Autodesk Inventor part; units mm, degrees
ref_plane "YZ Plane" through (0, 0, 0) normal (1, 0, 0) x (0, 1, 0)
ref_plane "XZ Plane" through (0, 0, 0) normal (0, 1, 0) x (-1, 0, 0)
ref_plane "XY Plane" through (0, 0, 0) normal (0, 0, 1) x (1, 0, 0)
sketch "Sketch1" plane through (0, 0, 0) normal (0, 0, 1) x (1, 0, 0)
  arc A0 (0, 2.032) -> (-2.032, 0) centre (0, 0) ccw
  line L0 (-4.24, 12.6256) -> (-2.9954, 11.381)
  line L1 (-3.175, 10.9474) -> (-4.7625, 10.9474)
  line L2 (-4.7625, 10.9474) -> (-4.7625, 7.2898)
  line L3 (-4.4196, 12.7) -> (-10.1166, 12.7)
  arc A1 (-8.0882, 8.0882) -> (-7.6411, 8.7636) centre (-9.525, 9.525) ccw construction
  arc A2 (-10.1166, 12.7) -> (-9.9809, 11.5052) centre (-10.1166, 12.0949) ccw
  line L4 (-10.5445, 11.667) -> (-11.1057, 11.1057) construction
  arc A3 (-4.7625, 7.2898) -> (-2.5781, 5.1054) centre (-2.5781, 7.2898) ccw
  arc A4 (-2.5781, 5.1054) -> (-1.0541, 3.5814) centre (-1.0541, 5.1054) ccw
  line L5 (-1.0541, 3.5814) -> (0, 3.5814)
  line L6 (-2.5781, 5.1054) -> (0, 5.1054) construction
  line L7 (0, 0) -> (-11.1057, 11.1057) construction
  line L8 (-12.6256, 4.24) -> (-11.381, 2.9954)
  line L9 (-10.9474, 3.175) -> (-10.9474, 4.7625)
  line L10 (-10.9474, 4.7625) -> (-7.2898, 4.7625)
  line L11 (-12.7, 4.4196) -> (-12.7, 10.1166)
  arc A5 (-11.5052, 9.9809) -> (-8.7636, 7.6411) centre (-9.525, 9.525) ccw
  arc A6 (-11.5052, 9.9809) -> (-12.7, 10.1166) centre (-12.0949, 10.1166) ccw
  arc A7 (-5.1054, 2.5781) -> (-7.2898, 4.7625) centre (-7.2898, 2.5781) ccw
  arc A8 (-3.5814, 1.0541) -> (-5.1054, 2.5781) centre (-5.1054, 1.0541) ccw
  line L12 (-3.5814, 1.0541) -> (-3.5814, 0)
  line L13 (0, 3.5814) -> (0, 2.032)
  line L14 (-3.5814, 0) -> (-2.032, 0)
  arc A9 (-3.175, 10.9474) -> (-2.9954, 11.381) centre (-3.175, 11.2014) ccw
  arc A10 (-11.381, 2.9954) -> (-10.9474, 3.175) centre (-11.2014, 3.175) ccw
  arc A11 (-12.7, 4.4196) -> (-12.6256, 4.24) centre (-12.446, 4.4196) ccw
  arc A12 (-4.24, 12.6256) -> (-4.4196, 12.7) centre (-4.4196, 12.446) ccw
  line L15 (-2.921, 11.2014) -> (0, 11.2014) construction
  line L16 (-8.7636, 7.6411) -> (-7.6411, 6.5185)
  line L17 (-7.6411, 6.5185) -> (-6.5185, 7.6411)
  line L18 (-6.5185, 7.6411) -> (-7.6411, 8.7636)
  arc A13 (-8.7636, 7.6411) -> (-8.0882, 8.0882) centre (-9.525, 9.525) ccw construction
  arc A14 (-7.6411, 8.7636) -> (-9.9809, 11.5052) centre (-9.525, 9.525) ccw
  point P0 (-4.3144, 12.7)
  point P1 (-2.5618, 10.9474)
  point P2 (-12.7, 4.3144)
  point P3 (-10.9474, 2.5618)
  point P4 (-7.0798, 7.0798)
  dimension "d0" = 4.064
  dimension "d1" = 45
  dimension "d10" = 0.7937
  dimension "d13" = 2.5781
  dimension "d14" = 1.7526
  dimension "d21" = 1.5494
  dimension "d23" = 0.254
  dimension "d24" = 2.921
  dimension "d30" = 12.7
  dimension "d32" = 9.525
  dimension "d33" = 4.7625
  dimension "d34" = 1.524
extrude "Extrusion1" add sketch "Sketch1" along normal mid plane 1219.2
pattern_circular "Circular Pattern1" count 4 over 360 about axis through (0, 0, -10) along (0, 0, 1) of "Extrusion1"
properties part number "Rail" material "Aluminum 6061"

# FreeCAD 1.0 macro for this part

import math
import FreeCAD as App
import Part
import Sketcher
from FreeCAD import Vector
Q = App.Units.Quantity

doc = App.newDocument("Part")
body = doc.addObject("PartDesign::Body", "Body")

sketch1 = body.newObject("Sketcher::SketchObject", "Sketch")
sketch1.AttachmentSupport = (doc.getObject("XY_Plane"), [""])
sketch1.MapMode = "FlatFace"
sketch1.addGeometry([
    Part.ArcOfCircle(Part.Circle(Vector(0, 0, 0), Vector(0, 0, 1), 2.03), math.radians(90), math.radians(180)),
    Part.LineSegment(Vector(0, 2.03, 0), Vector(0, 3.58, 0)),
    Part.LineSegment(Vector(0, 3.58, 0), Vector(-1.05, 3.58, 0)),
    Part.ArcOfCircle(Part.Circle(Vector(-1.05, 5.11, 0), Vector(0, 0, 1), 1.52), math.radians(180), math.radians(270)),
    Part.ArcOfCircle(Part.Circle(Vector(-2.58, 7.29, 0), Vector(0, 0, 1), 2.18), math.radians(180), math.radians(270)),
    Part.LineSegment(Vector(-4.76, 7.29, 0), Vector(-4.76, 10.95, 0)),
    Part.LineSegment(Vector(-4.76, 10.95, 0), Vector(-3.17, 10.95, 0)),
    Part.ArcOfCircle(Part.Circle(Vector(-3.17, 11.2, 0), Vector(0, 0, 1), 0.25), math.radians(-90), math.radians(45)),
    Part.LineSegment(Vector(-3, 11.38, 0), Vector(-4.24, 12.63, 0)),
    Part.ArcOfCircle(Part.Circle(Vector(-4.42, 12.45, 0), Vector(0, 0, 1), 0.25), math.radians(45), math.radians(90)),
    Part.LineSegment(Vector(-4.42, 12.7, 0), Vector(-10.12, 12.7, 0)),
    Part.ArcOfCircle(Part.Circle(Vector(-10.12, 12.09, 0), Vector(0, 0, 1), 0.61), math.radians(90), math.radians(283)),
    Part.ArcOfCircle(Part.Circle(Vector(-9.53, 9.53, 0), Vector(0, 0, 1), 2.03), math.radians(-22), math.radians(103)),
    Part.LineSegment(Vector(-7.64, 8.76, 0), Vector(-6.52, 7.64, 0)),
    Part.LineSegment(Vector(-6.52, 7.64, 0), Vector(-7.64, 6.52, 0)),
    Part.LineSegment(Vector(-7.64, 6.52, 0), Vector(-8.76, 7.64, 0)),
    Part.ArcOfCircle(Part.Circle(Vector(-9.53, 9.53, 0), Vector(0, 0, 1), 2.03), math.radians(167), math.radians(292)),
    Part.ArcOfCircle(Part.Circle(Vector(-12.09, 10.12, 0), Vector(0, 0, 1), 0.61), math.radians(-13), math.radians(180)),
    Part.LineSegment(Vector(-12.7, 10.12, 0), Vector(-12.7, 4.42, 0)),
    Part.ArcOfCircle(Part.Circle(Vector(-12.45, 4.42, 0), Vector(0, 0, 1), 0.25), math.radians(180), math.radians(225)),
    Part.LineSegment(Vector(-12.63, 4.24, 0), Vector(-11.38, 3, 0)),
    Part.ArcOfCircle(Part.Circle(Vector(-11.2, 3.17, 0), Vector(0, 0, 1), 0.25), math.radians(-135), math.radians(0)),
    Part.LineSegment(Vector(-10.95, 3.17, 0), Vector(-10.95, 4.76, 0)),
    Part.LineSegment(Vector(-10.95, 4.76, 0), Vector(-7.29, 4.76, 0)),
    Part.ArcOfCircle(Part.Circle(Vector(-7.29, 2.58, 0), Vector(0, 0, 1), 2.18), math.radians(0), math.radians(90)),
    Part.ArcOfCircle(Part.Circle(Vector(-5.11, 1.05, 0), Vector(0, 0, 1), 1.52), math.radians(0), math.radians(90)),
    Part.LineSegment(Vector(-3.58, 1.05, 0), Vector(-3.58, 0, 0)),
    Part.LineSegment(Vector(-3.58, 0, 0), Vector(-2.03, 0, 0)),
], False)
sketch1.addConstraint([
    Sketcher.Constraint("Coincident", 0, 1, 1, 1),
    Sketcher.Constraint("Coincident", 1, 2, 2, 1),
    Sketcher.Constraint("Tangent", 2, 2, 3, 2),
    Sketcher.Constraint("Coincident", 3, 1, 4, 2),
    Sketcher.Constraint("Tangent", 4, 1, 5, 1),
    Sketcher.Constraint("Coincident", 5, 2, 6, 1),
    Sketcher.Constraint("Tangent", 6, 2, 7, 1),
    Sketcher.Constraint("Tangent", 7, 2, 8, 1),
    Sketcher.Constraint("Tangent", 8, 2, 9, 1),
    Sketcher.Constraint("Tangent", 9, 2, 10, 1),
    Sketcher.Constraint("Tangent", 10, 2, 11, 1),
    Sketcher.Constraint("Tangent", 11, 2, 12, 2),
    Sketcher.Constraint("Coincident", 12, 1, 13, 1),
    Sketcher.Constraint("Coincident", 13, 2, 14, 1),
    Sketcher.Constraint("Coincident", 14, 2, 15, 1),
    Sketcher.Constraint("Coincident", 15, 2, 16, 2),
    Sketcher.Constraint("Tangent", 16, 1, 17, 1),
    Sketcher.Constraint("Tangent", 17, 2, 18, 1),
    Sketcher.Constraint("Tangent", 18, 2, 19, 1),
    Sketcher.Constraint("Tangent", 19, 2, 20, 1),
    Sketcher.Constraint("Tangent", 20, 2, 21, 1),
    Sketcher.Constraint("Tangent", 21, 2, 22, 1),
    Sketcher.Constraint("Coincident", 22, 2, 23, 1),
    Sketcher.Constraint("Tangent", 23, 2, 24, 2),
    Sketcher.Constraint("Coincident", 24, 1, 25, 2),
    Sketcher.Constraint("Tangent", 25, 1, 26, 1),
    Sketcher.Constraint("Coincident", 26, 2, 27, 1),
    Sketcher.Constraint("Coincident", 27, 2, 0, 2),
    Sketcher.Constraint("Vertical", 1),
    Sketcher.Constraint("Horizontal", 2),
    Sketcher.Constraint("Vertical", 5),
    Sketcher.Constraint("Horizontal", 6),
    Sketcher.Constraint("Horizontal", 10),
    Sketcher.Constraint("Vertical", 18),
    Sketcher.Constraint("Vertical", 22),
    Sketcher.Constraint("Horizontal", 23),
    Sketcher.Constraint("Vertical", 26),
    Sketcher.Constraint("Horizontal", 27),
    Sketcher.Constraint("Coincident", 0, 3, -1, 1),
    Sketcher.Constraint("Coincident", 16, 3, 12, 3),
    Sketcher.Constraint("Equal", 7, 9),
    Sketcher.Constraint("Equal", 0, 12),
    Sketcher.Constraint("Equal", 12, 16),
    Sketcher.Constraint("Equal", 11, 17),
    Sketcher.Constraint("Equal", 9, 19),
    Sketcher.Constraint("Equal", 19, 21),
    Sketcher.Constraint("Equal", 4, 24),
    Sketcher.Constraint("Equal", 3, 25),
    Sketcher.Constraint("PointOnObject", 0, 1, -2),
    Sketcher.Constraint("PointOnObject", 26, 2, -1),
    Sketcher.Constraint("Parallel", 8, 13),
    Sketcher.Constraint("Perpendicular", 13, 14),
    Sketcher.Constraint("Perpendicular", 14, 15),
    Sketcher.Constraint("Parallel", 15, 20),
    Sketcher.Constraint("Horizontal", 13, 2, 15, 2),
    Sketcher.Constraint("Vertical", 4, 3, 3, 1),
    Sketcher.Constraint("Vertical", 12, 1, 14, 2),
    Sketcher.Constraint("Vertical", 25, 3, 24, 1),
    Sketcher.Constraint("Equal", 27, 1),
    Sketcher.Constraint("Equal", 23, 5),
    Sketcher.Constraint("Equal", 10, 18),
    Sketcher.Constraint("Equal", 6, 22),
    Sketcher.Constraint("Equal", 2, 26),
    Sketcher.Constraint("Equal", 13, 14),
    Sketcher.Constraint("Equal", 8, 20),
    Sketcher.Constraint("Radius", 0, Q("0.08 in")),
    Sketcher.Constraint("Radius", 3, Q("0.06 in")),
    Sketcher.Constraint("Radius", 7, Q("0.01 in")),
    Sketcher.Constraint("DistanceY", -1, 1, 9, 2, Q("0.5 in")),
    Sketcher.Constraint("DistanceX", 17, 2, -1, 1, Q("0.5 in")),
    Sketcher.Constraint("DistanceX", 27, 1, 27, 2, Q("0.061 in")),
    Sketcher.Constraint("DistanceY", 25, 3, 24, 3, Q("0.06 in")),
    Sketcher.Constraint("DistanceX", 16, 1, 11, 2, Q("0.06 in")),
    Sketcher.Constraint("DistanceX", 12, 3, -1, 1, Q("0.375 in")),
    Sketcher.Constraint("DistanceX", 4, 1, -1, 1, Q("0.1875 in")),
    Sketcher.Constraint("Radius", 4, Q("0.086 in")),
    Sketcher.Constraint("DistanceY", 5, 2, 9, 2, Q("0.069 in")),
    Sketcher.Constraint("DistanceX", 6, 1, 6, 2, Q("0.0625 in")),
    Sketcher.Constraint("Distance", 13, Q("0.0625 in")),
])
pad1 = body.newObject("PartDesign::Pad", "Pad")
pad1.Profile = sketch1
pad1.Length = Q("48 in")
pad1.Midplane = True
doc.recompute()

polarpattern = body.newObject("PartDesign::PolarPattern", "PolarPattern")
polarpattern.Originals = [pad1]
polarpattern.Axis = (doc.getObject("Z_Axis"), [""])
polarpattern.Angle = 360
polarpattern.Occurrences = 4
body.Tip = polarpattern

doc.recompute()
